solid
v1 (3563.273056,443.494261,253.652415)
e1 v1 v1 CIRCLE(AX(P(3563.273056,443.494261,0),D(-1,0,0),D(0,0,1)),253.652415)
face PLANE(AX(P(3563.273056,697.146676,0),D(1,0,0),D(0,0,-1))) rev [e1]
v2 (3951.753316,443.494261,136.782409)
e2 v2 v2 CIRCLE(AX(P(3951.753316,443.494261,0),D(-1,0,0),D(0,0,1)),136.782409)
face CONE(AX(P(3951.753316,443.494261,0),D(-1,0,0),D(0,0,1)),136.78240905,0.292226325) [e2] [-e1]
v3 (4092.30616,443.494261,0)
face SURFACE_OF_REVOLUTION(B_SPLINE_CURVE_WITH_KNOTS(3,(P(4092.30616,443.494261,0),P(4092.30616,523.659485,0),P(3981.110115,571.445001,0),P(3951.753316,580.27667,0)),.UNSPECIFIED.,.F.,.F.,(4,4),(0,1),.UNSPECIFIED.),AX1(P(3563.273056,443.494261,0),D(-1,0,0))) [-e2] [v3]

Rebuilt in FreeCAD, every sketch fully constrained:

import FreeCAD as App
import Part
import Sketcher
Q = App.Units.Quantity

doc = App.newDocument("Part")
params = doc.addObject("Spreadsheet::Sheet", "Params")
for row, (alias, value) in enumerate([
    ("revolution_angle", "360 deg"),
], start=1):
    params.set(f"A{row}", alias)
    params.set(f"B{row}", "=" + value)
    params.setAlias(f"B{row}", alias)

body = doc.addObject("PartDesign::Body", "Body")

# Sketch on XY plane
sketch1 = doc.addObject("Sketcher::SketchObject", "Sketch")
body.addObject(sketch1)
sketch1.AttachmentSupport = (doc.XY_Plane, [""])
sketch1.MapMode = "FlatFace"
sketch1.addGeometry(Part.LineSegment(App.Vector(3951.753316, 580.27667, 0), App.Vector(3563.273056, 697.146676, 0)), False)
sketch1.addGeometry(Part.LineSegment(App.Vector(3563.273056, 697.146676, 0), App.Vector(3563.273056, 443.494261, 0)), False)
sketch1.addGeometry(Part.LineSegment(App.Vector(3563.273056, 443.494261, 0), App.Vector(4092.30616, 443.494261, 0)), False)
sketch1.addGeometry(Part.BSplineCurve([App.Vector(4092.30616, 443.494261, 0), App.Vector(4092.30616, 523.659485, 0), App.Vector(3981.110115, 571.445001, 0), App.Vector(3951.753316, 580.27667, 0)], [4, 4], [0, 1], False, 3, [1, 1, 1, 1], False), False)
sketch1.addGeometry(Part.LineSegment(App.Vector(3563.273056, 443.494261, 0), App.Vector(4092.30616, 443.494261, 0)), True)  # axis
sketch1.addConstraint(Sketcher.Constraint("Block", 3))
sketch1.addConstraint(Sketcher.Constraint("Coincident", 0, 2, 1, 1))
sketch1.addConstraint(Sketcher.Constraint("Coincident", 1, 2, 2, 1))
sketch1.addConstraint(Sketcher.Constraint("Coincident", 2, 2, 3, 1))
sketch1.addConstraint(Sketcher.Constraint("Coincident", 3, 2, 0, 1))
sketch1.addConstraint(Sketcher.Constraint("Vertical", 1))
sketch1.addConstraint(Sketcher.Constraint("Horizontal", 2))
sketch1.addConstraint(Sketcher.Constraint("Horizontal", 4))
sketch1.addConstraint(Sketcher.Constraint("Coincident", 4, 1, 1, 2))
sketch1.addConstraint(Sketcher.Constraint("Equal", 2, 4))
sketch1.addConstraint(Sketcher.Constraint("DistanceX", 2, 1, 2, 2, Q("529.033104 mm")))
sketch1.addConstraint(Sketcher.Constraint("DistanceY", 1, 2, 1, 1, Q("253.652415 mm")))
revolution = doc.addObject("PartDesign::Revolution", "Revolution")
body.addObject(revolution)
revolution.Profile = sketch1
revolution.ReferenceAxis = (sketch1, ["Axis0"])
revolution.setExpression("Angle", "Params.revolution_angle")

doc.recompute()
